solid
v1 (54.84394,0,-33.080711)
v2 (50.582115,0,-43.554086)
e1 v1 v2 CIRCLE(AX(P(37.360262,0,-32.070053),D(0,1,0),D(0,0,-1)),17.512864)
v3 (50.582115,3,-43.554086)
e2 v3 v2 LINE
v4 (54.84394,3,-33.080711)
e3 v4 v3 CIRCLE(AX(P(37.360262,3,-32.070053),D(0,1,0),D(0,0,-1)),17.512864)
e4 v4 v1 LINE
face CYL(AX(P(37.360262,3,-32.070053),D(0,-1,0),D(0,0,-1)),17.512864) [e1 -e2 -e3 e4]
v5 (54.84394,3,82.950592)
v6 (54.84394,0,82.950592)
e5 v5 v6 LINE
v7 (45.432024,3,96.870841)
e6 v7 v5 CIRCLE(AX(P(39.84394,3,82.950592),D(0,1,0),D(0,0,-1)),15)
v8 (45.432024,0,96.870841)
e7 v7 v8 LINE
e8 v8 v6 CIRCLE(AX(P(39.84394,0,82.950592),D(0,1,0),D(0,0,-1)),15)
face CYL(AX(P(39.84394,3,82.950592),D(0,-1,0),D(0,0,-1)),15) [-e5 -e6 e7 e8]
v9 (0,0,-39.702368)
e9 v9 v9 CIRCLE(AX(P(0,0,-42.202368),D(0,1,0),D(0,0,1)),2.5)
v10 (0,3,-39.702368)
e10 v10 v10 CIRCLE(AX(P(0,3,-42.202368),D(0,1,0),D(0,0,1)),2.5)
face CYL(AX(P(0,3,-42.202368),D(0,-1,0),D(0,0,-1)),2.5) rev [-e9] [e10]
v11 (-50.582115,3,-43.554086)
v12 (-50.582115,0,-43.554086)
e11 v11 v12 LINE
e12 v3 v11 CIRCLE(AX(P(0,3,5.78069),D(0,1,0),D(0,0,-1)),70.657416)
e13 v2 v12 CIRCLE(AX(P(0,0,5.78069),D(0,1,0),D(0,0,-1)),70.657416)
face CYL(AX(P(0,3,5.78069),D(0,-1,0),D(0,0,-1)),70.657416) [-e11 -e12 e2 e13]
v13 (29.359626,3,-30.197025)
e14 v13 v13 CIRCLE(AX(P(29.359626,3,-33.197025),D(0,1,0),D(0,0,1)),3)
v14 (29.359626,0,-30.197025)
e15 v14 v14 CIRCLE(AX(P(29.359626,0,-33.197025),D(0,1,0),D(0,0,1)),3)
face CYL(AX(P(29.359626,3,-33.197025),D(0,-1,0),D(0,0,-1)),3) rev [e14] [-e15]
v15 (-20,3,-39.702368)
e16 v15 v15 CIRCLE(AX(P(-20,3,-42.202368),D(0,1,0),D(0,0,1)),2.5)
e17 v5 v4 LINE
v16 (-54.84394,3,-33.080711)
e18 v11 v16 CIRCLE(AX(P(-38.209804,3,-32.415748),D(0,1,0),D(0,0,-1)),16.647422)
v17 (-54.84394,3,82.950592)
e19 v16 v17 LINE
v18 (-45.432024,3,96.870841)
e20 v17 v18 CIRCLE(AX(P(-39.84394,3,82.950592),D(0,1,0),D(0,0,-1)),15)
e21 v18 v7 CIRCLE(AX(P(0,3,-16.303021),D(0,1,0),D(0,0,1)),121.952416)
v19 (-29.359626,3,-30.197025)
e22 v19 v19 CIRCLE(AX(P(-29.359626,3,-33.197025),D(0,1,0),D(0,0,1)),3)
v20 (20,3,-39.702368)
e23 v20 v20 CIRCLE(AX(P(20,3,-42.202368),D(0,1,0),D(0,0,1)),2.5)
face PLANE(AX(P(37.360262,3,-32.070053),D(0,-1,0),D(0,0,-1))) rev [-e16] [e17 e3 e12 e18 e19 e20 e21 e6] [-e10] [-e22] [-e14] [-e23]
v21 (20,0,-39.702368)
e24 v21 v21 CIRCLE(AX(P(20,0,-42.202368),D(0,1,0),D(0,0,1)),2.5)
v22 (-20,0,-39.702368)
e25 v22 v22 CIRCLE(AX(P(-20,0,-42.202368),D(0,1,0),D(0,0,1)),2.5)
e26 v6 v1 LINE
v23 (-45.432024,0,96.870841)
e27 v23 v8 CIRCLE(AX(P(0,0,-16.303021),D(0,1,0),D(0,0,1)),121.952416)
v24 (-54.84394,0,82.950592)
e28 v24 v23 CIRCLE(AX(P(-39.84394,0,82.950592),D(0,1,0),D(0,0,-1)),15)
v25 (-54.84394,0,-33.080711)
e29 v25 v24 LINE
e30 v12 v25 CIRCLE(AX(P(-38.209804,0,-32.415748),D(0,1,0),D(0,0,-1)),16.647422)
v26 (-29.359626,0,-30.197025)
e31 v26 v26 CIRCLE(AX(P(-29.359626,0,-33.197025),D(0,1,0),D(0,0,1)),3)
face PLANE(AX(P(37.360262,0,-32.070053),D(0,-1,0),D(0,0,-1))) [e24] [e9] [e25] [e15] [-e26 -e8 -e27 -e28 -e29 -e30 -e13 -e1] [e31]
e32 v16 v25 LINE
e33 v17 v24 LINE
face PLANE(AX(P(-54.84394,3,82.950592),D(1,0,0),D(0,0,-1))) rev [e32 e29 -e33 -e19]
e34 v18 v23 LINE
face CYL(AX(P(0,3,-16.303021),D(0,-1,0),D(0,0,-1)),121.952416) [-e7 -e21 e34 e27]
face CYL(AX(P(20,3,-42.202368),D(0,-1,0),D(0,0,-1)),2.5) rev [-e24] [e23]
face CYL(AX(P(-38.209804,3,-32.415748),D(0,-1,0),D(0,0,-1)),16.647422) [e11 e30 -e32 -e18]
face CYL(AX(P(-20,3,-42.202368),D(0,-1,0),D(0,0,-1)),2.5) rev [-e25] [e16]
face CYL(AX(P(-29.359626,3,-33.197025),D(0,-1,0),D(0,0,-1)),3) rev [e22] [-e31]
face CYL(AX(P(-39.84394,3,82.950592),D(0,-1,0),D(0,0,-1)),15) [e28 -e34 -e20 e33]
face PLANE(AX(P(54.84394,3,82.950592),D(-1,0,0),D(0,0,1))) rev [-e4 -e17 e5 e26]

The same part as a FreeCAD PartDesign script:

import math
import FreeCAD as App
import Part
import Sketcher

doc = App.newDocument("Part")
body = doc.addObject("PartDesign::Body", "Body")

# Sketch on XZ plane
sketch1 = body.newObject("Sketcher::SketchObject", "Sketch")
sketch1.AttachmentSupport = (doc.getObject("XZ_Plane"), [""])
sketch1.MapMode = "FlatFace"
sketch1.addGeometry([
    Part.LineSegment(App.Vector(-54.8, -33.1, 0), App.Vector(-54.8, 83, 0)),  # 0
    Part.ArcOfCircle(Part.Circle(App.Vector(-39.8, 83, 0), App.Vector(0, 0, 1), 15), math.radians(112), math.radians(180)),  # 1
    Part.ArcOfCircle(Part.Circle(App.Vector(0, -16.3, 0), App.Vector(0, 0, 1), 122), math.radians(68), math.radians(112)),  # 2
    Part.ArcOfCircle(Part.Circle(App.Vector(39.8, 83, 0), App.Vector(0, 0, 1), 15), math.radians(0), math.radians(68)),  # 3
    Part.LineSegment(App.Vector(54.8, 83, 0), App.Vector(54.8, -33.1, 0)),  # 4
    Part.ArcOfCircle(Part.Circle(App.Vector(37.4, -32.1, 0), App.Vector(0, 0, 1), 17.5), math.radians(-41), math.radians(-3)),  # 5
    Part.ArcOfCircle(Part.Circle(App.Vector(0, 5.8, 0), App.Vector(0, 0, 1), 70.7), math.radians(-136), math.radians(-44)),  # 6
    Part.ArcOfCircle(Part.Circle(App.Vector(-38.2, -32.4, 0), App.Vector(0, 0, 1), 16.6), math.radians(-178), math.radians(-138)),  # 7
    Part.Circle(App.Vector(29.4, -33.2, 0), App.Vector(0, 0, 1), 3),  # 8
    Part.Circle(App.Vector(-29.4, -33.2, 0), App.Vector(0, 0, 1), 3),  # 9
    Part.Circle(App.Vector(20, -42.2, 0), App.Vector(0, 0, 1), 2.5),  # 10
    Part.Circle(App.Vector(0, -42.2, 0), App.Vector(0, 0, 1), 2.5),  # 11
    Part.Circle(App.Vector(-20, -42.2, 0), App.Vector(0, 0, 1), 2.5),  # 12
], False)
sketch1.addConstraint([
    Sketcher.Constraint("Tangent", 0, 2, 1, 2),
    Sketcher.Constraint("Tangent", 1, 1, 2, 2),
    Sketcher.Constraint("Tangent", 2, 1, 3, 2),
    Sketcher.Constraint("Tangent", 3, 1, 4, 1),
    Sketcher.Constraint("Coincident", 4, 2, 5, 2),
    Sketcher.Constraint("Coincident", 5, 1, 6, 2),
    Sketcher.Constraint("Coincident", 6, 1, 7, 2),
    Sketcher.Constraint("Coincident", 7, 1, 0, 1),
    Sketcher.Constraint("Vertical", 0),
    Sketcher.Constraint("Vertical", 4),
    Sketcher.Constraint("Equal", 1, 3),
    Sketcher.Constraint("Equal", 8, 9),
    Sketcher.Constraint("Equal", 10, 11),
    Sketcher.Constraint("Equal", 11, 12),
    Sketcher.Constraint("Symmetric", 1, 3, 3, 3, -2),
    Sketcher.Constraint("Symmetric", 8, 3, 9, 3, -2),
    Sketcher.Constraint("Symmetric", 10, 3, 12, 3, -2),
    Sketcher.Constraint("Symmetric", 5, 1, 6, 1, -2),
    Sketcher.Constraint("PointOnObject", 11, 3, -2),
    Sketcher.Constraint("Horizontal", 10, 3, 11, 3),
    Sketcher.Constraint("Horizontal", 4, 2, 7, 1),
    Sketcher.Constraint("Diameter", 8, 6.0),
    Sketcher.Constraint("Diameter", 10, 5.0),
    Sketcher.Constraint("Radius", 1, 15.0),
    Sketcher.Constraint("DistanceX", -1, 1, 10, 3, 20.0),
    Sketcher.Constraint("Radius", 7, 16.647422),
    Sketcher.Constraint("Radius", 2, 121.952416),
    Sketcher.Constraint("Radius", 5, 17.512864),
    Sketcher.Constraint("Radius", 6, 70.657416),
    Sketcher.Constraint("DistanceY", 0, 1, 0, 2, 116.031303),
    Sketcher.Constraint("DistanceX", 1, 3, -1, 1, 39.84394),
    Sketcher.Constraint("DistanceY", 2, 3, -1, 1, 16.303021),
    Sketcher.Constraint("DistanceY", -1, 1, 6, 3, 5.78069),
    Sketcher.Constraint("DistanceY", 7, 3, -1, 1, 32.415748),
    Sketcher.Constraint("DistanceY", 8, 3, 5, 3, 1.126972),
    Sketcher.Constraint("DistanceX", 7, 3, 8, 3, 67.56943),
    Sketcher.Constraint("DistanceY", 12, 3, 7, 3, 9.786619),
])
pad1 = body.newObject("PartDesign::Pad", "Pad")
pad1.Profile = sketch1
pad1.Length = 3
pad1.Reversed = True

doc.recompute()
